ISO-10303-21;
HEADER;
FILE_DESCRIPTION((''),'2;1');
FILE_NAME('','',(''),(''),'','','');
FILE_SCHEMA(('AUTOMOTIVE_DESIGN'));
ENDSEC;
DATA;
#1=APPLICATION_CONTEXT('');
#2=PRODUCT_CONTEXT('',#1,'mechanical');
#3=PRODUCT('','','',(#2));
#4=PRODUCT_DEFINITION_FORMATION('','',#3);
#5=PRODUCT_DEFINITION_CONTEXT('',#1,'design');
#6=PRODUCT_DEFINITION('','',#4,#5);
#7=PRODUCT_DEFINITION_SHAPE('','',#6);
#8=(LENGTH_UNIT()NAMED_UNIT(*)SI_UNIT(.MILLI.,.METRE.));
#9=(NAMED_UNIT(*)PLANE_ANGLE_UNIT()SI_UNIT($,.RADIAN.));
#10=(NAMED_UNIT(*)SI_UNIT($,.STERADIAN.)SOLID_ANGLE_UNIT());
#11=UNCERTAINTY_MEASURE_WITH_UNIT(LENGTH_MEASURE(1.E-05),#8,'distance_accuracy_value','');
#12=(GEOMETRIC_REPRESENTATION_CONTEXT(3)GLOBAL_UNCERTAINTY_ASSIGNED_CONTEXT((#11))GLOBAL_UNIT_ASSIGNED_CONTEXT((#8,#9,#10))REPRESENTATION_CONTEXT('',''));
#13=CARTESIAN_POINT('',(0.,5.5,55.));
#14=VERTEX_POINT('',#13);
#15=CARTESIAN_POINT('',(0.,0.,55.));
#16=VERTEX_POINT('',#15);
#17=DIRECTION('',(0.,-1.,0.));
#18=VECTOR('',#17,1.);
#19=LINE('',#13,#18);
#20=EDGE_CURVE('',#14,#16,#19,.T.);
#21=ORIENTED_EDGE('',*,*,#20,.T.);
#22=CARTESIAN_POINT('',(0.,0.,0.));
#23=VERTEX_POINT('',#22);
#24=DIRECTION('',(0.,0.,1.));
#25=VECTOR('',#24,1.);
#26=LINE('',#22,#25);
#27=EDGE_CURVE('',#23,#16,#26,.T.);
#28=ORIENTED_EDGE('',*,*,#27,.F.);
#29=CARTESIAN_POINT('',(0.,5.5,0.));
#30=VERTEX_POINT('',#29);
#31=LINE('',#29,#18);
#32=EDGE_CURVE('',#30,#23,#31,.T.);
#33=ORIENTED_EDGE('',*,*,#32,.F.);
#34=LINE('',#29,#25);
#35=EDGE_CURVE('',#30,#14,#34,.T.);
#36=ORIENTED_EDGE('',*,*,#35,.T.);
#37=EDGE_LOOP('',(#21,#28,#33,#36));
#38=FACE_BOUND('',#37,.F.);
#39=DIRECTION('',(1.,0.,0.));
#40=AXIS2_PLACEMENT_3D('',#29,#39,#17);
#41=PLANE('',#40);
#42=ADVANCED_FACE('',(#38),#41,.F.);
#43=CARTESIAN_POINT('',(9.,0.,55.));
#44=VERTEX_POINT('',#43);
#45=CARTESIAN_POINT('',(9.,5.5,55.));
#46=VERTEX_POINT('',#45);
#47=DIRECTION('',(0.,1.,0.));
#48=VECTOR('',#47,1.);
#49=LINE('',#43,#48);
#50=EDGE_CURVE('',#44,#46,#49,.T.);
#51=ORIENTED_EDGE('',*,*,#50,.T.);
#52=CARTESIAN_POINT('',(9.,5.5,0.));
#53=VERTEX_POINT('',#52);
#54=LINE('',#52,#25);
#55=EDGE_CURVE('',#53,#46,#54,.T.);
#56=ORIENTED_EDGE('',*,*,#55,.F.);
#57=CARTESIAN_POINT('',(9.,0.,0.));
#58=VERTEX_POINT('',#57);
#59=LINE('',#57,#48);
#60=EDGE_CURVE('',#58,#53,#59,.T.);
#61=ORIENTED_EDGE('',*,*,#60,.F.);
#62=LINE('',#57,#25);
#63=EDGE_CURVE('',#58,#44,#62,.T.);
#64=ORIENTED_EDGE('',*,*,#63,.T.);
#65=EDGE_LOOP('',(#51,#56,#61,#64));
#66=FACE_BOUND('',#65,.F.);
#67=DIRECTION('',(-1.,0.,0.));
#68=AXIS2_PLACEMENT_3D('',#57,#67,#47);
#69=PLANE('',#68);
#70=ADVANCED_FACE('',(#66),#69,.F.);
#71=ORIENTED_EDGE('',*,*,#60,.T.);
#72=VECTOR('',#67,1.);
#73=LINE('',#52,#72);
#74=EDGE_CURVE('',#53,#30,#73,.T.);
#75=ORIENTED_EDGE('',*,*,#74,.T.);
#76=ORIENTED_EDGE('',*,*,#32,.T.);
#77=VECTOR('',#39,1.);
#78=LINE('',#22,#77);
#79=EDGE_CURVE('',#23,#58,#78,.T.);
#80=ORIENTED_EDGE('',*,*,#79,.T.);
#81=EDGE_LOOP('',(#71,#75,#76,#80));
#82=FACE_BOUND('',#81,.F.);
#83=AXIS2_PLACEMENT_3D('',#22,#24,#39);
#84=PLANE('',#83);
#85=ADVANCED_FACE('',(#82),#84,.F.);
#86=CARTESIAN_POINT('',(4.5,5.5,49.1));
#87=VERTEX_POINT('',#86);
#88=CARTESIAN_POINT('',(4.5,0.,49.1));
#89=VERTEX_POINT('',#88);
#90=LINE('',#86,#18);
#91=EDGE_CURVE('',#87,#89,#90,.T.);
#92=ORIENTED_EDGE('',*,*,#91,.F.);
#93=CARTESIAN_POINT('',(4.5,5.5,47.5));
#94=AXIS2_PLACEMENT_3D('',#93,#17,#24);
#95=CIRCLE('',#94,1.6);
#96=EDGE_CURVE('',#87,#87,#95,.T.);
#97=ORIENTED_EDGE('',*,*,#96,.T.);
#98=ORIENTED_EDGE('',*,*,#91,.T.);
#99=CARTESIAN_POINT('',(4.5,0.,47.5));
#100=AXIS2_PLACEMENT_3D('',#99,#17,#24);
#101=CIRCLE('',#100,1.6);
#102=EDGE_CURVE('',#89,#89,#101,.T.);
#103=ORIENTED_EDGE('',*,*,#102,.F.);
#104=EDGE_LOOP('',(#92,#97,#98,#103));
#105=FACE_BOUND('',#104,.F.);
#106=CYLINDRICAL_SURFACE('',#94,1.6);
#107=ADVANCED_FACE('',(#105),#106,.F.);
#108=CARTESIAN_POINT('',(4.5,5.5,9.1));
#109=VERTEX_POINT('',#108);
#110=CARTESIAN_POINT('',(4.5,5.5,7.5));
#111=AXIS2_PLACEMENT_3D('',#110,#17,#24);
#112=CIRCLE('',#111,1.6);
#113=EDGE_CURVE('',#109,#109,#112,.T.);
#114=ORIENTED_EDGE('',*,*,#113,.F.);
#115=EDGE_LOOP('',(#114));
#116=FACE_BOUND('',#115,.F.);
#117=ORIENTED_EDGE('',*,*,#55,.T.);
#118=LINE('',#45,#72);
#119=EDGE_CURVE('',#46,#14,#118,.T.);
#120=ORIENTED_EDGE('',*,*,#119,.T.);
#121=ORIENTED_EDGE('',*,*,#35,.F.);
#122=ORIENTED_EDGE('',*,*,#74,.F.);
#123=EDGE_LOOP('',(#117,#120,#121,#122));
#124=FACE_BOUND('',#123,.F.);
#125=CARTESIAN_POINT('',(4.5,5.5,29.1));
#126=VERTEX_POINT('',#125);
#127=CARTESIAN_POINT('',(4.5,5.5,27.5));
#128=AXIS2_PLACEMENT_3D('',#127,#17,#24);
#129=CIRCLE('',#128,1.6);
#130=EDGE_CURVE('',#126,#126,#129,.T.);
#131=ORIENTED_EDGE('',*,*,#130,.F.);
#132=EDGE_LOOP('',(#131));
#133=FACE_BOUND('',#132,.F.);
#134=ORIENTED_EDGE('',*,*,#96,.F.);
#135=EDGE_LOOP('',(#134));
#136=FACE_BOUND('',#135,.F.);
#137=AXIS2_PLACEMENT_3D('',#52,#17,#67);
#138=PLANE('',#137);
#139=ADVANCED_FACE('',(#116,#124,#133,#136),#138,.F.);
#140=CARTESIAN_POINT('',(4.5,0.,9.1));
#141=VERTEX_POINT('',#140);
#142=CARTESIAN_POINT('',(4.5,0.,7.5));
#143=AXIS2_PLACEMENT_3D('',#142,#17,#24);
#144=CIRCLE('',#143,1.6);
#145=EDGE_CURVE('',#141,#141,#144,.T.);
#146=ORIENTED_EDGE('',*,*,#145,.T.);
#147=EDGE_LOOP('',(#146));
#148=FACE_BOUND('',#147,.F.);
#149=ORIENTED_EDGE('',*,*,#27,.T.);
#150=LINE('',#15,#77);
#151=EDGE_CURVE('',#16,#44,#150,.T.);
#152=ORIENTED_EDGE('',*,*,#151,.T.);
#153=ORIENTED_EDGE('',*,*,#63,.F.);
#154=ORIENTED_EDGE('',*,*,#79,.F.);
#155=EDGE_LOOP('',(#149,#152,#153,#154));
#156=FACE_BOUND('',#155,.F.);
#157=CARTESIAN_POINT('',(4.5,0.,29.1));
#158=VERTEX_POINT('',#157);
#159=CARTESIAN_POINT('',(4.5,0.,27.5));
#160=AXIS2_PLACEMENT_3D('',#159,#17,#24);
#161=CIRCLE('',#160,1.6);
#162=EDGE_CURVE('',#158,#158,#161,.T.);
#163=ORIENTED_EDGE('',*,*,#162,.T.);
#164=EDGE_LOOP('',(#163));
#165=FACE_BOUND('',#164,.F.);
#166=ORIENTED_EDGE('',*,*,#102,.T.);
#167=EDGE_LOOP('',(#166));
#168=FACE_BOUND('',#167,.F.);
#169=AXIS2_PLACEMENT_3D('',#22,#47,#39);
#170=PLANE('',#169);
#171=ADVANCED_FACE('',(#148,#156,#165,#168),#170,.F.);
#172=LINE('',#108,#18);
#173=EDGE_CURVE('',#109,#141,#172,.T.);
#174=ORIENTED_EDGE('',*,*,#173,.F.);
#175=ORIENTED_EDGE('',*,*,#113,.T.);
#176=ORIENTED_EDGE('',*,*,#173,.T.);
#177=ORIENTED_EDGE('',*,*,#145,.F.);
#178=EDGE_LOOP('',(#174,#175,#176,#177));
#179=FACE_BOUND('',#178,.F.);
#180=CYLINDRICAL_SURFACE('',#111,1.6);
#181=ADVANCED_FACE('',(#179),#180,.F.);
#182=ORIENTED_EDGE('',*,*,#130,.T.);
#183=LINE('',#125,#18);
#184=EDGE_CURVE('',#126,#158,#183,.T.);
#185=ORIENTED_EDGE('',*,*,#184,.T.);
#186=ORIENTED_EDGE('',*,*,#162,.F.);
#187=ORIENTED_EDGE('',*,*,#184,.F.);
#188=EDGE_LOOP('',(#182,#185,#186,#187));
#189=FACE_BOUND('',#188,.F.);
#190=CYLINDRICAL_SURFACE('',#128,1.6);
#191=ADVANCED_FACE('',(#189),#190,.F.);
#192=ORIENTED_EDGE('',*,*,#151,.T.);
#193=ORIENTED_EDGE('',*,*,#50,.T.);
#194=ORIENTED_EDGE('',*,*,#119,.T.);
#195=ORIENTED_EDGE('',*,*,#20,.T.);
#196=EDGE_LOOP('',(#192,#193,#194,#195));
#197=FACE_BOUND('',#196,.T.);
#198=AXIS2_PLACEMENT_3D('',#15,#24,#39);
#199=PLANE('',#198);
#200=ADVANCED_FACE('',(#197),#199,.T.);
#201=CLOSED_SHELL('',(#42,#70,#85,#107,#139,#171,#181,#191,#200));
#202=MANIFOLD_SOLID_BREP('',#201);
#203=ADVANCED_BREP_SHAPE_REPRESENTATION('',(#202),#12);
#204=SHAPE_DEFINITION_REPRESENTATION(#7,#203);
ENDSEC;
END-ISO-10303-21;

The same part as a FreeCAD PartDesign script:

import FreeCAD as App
import Part
import Sketcher

V = App.Vector

doc = App.newDocument("Part")
body = doc.addObject("PartDesign::Body", "Body")

sketch1 = doc.addObject("Sketcher::SketchObject", "Sketch")
body.addObject(sketch1)
sketch1.AttachmentSupport = (doc.XY_Plane, [""])
sketch1.MapMode = "FlatFace"
sketch1.addGeometry([
    Part.LineSegment(V(0, 6, 0), V(0, 0, 0)),
    Part.LineSegment(V(0, 0, 0), V(9, 0, 0)),
    Part.LineSegment(V(9, 0, 0), V(9, 6, 0)),
    Part.LineSegment(V(9, 6, 0), V(0, 6, 0)),
], False)
sketch1.addConstraint([
    Sketcher.Constraint("Coincident", 0, 2, 1, 1),
    Sketcher.Constraint("Coincident", 1, 2, 2, 1),
    Sketcher.Constraint("Coincident", 2, 2, 3, 1),
    Sketcher.Constraint("Coincident", 3, 2, 0, 1),
    Sketcher.Constraint("Vertical", 0),
    Sketcher.Constraint("Horizontal", 1),
    Sketcher.Constraint("Vertical", 2),
    Sketcher.Constraint("Horizontal", 3),
    Sketcher.Constraint("Coincident", 0, 2, -1, 1),
    Sketcher.Constraint("DistanceX", 1, 1, 1, 2, 9.0),
    Sketcher.Constraint("DistanceY", 0, 2, 0, 1, 5.5),
])
pad1 = doc.addObject("PartDesign::Pad", "Pad")
body.addObject(pad1)
pad1.Profile = sketch1
pad1.Length = 55

sketch2 = doc.addObject("Sketcher::SketchObject", "Sketch001")
body.addObject(sketch2)
sketch2.AttachmentSupport = (doc.XZ_Plane, [""])
sketch2.MapMode = "FlatFace"
sketch2.AttachmentOffset = App.Placement(V(0, 0, -5.5), App.Rotation())
sketch2.addGeometry([
    Part.Circle(V(4.5, 7.5, 0), V(0, 0, 1), 1.6),
    Part.Circle(V(4.5, 27.5, 0), V(0, 0, 1), 1.6),
    Part.Circle(V(4.5, 47.5, 0), V(0, 0, 1), 1.6),
    Part.Circle(V(4.5, 67.5, 0), V(0, 0, 1), 1.6),
    Part.Circle(V(4.5, 87.5, 0), V(0, 0, 1), 1.6),
], False)
sketch2.addConstraint([
    Sketcher.Constraint("Equal", 0, 1),
    Sketcher.Constraint("Equal", 1, 2),
    Sketcher.Constraint("Equal", 2, 3),
    Sketcher.Constraint("Equal", 3, 4),
    Sketcher.Constraint("Vertical", 0, 3, 1, 3),
    Sketcher.Constraint("Vertical", 1, 3, 2, 3),
    Sketcher.Constraint("Vertical", 2, 3, 3, 3),
    Sketcher.Constraint("Vertical", 3, 3, 4, 3),
    Sketcher.Constraint("Diameter", 0, 3.2),
    Sketcher.Constraint("DistanceY", 0, 3, 1, 3, 20.0),
    Sketcher.Constraint("DistanceY", 1, 3, 2, 3, 20.0),
    Sketcher.Constraint("DistanceY", 2, 3, 3, 3, 20.0),
    Sketcher.Constraint("DistanceY", 3, 3, 4, 3, 20.0),
    Sketcher.Constraint("DistanceX", -1, 1, 0, 3, 4.5),
    Sketcher.Constraint("DistanceY", -1, 1, 0, 3, 7.5),
])
doc.recompute()
hole = doc.addObject("PartDesign::Hole", "Hole")
body.addObject(hole)
hole.Profile = sketch2
hole.ThreadType = "None"
hole.Diameter = 3.2
hole.DepthType = "ThroughAll"
hole.Reversed = True

doc.recompute()
